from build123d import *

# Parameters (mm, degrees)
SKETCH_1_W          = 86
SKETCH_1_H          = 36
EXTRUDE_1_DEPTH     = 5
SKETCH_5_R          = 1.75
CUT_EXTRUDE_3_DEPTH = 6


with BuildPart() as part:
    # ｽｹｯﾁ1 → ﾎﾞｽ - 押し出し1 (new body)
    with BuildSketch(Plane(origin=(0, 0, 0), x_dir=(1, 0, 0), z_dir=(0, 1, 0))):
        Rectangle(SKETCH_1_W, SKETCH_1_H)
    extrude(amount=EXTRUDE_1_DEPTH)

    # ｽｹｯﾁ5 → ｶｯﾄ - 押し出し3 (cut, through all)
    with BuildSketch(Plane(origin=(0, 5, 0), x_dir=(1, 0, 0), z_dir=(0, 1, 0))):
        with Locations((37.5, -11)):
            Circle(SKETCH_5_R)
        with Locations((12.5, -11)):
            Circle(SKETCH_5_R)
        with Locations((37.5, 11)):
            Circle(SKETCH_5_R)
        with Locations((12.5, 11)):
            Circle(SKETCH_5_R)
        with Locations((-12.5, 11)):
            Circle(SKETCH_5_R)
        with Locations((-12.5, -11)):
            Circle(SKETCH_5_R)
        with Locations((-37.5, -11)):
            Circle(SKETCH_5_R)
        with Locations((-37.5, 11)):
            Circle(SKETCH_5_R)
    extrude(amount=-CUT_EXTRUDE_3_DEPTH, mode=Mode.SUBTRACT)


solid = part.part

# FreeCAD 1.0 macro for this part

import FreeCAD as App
import Part
import Sketcher
from FreeCAD import Vector
Q = App.Units.Quantity

doc = App.newDocument("Part")
body = doc.addObject("PartDesign::Body", "Body")

sketch1 = body.newObject("Sketcher::SketchObject", "Sketch")
sketch1.AttachmentSupport = (doc.getObject("XZ_Plane"), [""])
sketch1.MapMode = "FlatFace"
sketch1.addGeometry(Part.LineSegment(Vector(-43, -18, 0), Vector(-43, 18, 0)), False)
sketch1.addGeometry(Part.LineSegment(Vector(-43, 18, 0), Vector(43, 18, 0)), False)
sketch1.addGeometry(Part.LineSegment(Vector(43, 18, 0), Vector(43, -18, 0)), False)
sketch1.addGeometry(Part.LineSegment(Vector(43, -18, 0), Vector(-43, -18, 0)), False)
sketch1.addConstraint(Sketcher.Constraint("Coincident", 0, 2, 1, 1))
sketch1.addConstraint(Sketcher.Constraint("Coincident", 1, 2, 2, 1))
sketch1.addConstraint(Sketcher.Constraint("Coincident", 2, 2, 3, 1))
sketch1.addConstraint(Sketcher.Constraint("Coincident", 3, 2, 0, 1))
sketch1.addConstraint(Sketcher.Constraint("Vertical", 0))
sketch1.addConstraint(Sketcher.Constraint("Horizontal", 1))
sketch1.addConstraint(Sketcher.Constraint("Vertical", 2))
sketch1.addConstraint(Sketcher.Constraint("Horizontal", 3))
sketch1.addConstraint(Sketcher.Constraint("Symmetric", 0, 2, 2, 2, -1, 1))
sketch1.addConstraint(Sketcher.Constraint("DistanceX", 1, 1, 1, 2, Q("86 mm")))
sketch1.addConstraint(Sketcher.Constraint("DistanceY", 0, 1, 0, 2, Q("36 mm")))
pad1 = body.newObject("PartDesign::Pad", "Pad")
pad1.Profile = sketch1
pad1.Length = 5
pad1.Reversed = True

sketch2 = body.newObject("Sketcher::SketchObject", "Sketch001")
sketch2.AttachmentSupport = (doc.getObject("XZ_Plane"), [""])
sketch2.MapMode = "FlatFace"
sketch2.AttachmentOffset = App.Placement(Vector(0, 0, -5), App.Rotation())
sketch2.addGeometry(Part.Circle(Vector(37.5, 11, 0), Vector(0, 0, 1), 1.8), False)
sketch2.addGeometry(Part.Circle(Vector(12.5, 11, 0), Vector(0, 0, 1), 1.8), False)
sketch2.addGeometry(Part.Circle(Vector(37.5, -11, 0), Vector(0, 0, 1), 1.8), False)
sketch2.addGeometry(Part.Circle(Vector(12.5, -11, 0), Vector(0, 0, 1), 1.8), False)
sketch2.addGeometry(Part.Circle(Vector(-12.5, -11, 0), Vector(0, 0, 1), 1.8), False)
sketch2.addGeometry(Part.Circle(Vector(-12.5, 11, 0), Vector(0, 0, 1), 1.8), False)
sketch2.addGeometry(Part.Circle(Vector(-37.5, 11, 0), Vector(0, 0, 1), 1.8), False)
sketch2.addGeometry(Part.Circle(Vector(-37.5, -11, 0), Vector(0, 0, 1), 1.8), False)
sketch2.addConstraint(Sketcher.Constraint("Equal", 0, 1))
sketch2.addConstraint(Sketcher.Constraint("Equal", 1, 2))
sketch2.addConstraint(Sketcher.Constraint("Equal", 2, 3))
sketch2.addConstraint(Sketcher.Constraint("Equal", 3, 4))
sketch2.addConstraint(Sketcher.Constraint("Equal", 4, 5))
sketch2.addConstraint(Sketcher.Constraint("Equal", 5, 6))
sketch2.addConstraint(Sketcher.Constraint("Equal", 6, 7))
sketch2.addConstraint(Sketcher.Constraint("Symmetric", 1, 3, 4, 3, -1, 1))
sketch2.addConstraint(Sketcher.Constraint("Symmetric", 3, 3, 5, 3, -1, 1))
sketch2.addConstraint(Sketcher.Constraint("Symmetric", 2, 3, 6, 3, -1, 1))
sketch2.addConstraint(Sketcher.Constraint("Symmetric", 0, 3, 7, 3, -1, 1))
sketch2.addConstraint(Sketcher.Constraint("Symmetric", 3, 3, 4, 3, -2))
sketch2.addConstraint(Sketcher.Constraint("Symmetric", 0, 3, 6, 3, -2))
sketch2.addConstraint(Sketcher.Constraint("Horizontal", 0, 3, 1, 3))
sketch2.addConstraint(Sketcher.Constraint("Diameter", 0, Q("3.5 mm")))
sketch2.addConstraint(Sketcher.Constraint("DistanceY", -1, 1, 0, 3, Q("11 mm")))
sketch2.addConstraint(Sketcher.Constraint("DistanceX", 1, 3, 0, 3, Q("25 mm")))
sketch2.addConstraint(Sketcher.Constraint("DistanceX", 4, 3, 3, 3, Q("25 mm")))
pocket1 = body.newObject("PartDesign::Pocket", "Pocket")
pocket1.Profile = sketch2
pocket1.Type = "ThroughAll"
pocket1.Reversed = True

doc.recompute()
